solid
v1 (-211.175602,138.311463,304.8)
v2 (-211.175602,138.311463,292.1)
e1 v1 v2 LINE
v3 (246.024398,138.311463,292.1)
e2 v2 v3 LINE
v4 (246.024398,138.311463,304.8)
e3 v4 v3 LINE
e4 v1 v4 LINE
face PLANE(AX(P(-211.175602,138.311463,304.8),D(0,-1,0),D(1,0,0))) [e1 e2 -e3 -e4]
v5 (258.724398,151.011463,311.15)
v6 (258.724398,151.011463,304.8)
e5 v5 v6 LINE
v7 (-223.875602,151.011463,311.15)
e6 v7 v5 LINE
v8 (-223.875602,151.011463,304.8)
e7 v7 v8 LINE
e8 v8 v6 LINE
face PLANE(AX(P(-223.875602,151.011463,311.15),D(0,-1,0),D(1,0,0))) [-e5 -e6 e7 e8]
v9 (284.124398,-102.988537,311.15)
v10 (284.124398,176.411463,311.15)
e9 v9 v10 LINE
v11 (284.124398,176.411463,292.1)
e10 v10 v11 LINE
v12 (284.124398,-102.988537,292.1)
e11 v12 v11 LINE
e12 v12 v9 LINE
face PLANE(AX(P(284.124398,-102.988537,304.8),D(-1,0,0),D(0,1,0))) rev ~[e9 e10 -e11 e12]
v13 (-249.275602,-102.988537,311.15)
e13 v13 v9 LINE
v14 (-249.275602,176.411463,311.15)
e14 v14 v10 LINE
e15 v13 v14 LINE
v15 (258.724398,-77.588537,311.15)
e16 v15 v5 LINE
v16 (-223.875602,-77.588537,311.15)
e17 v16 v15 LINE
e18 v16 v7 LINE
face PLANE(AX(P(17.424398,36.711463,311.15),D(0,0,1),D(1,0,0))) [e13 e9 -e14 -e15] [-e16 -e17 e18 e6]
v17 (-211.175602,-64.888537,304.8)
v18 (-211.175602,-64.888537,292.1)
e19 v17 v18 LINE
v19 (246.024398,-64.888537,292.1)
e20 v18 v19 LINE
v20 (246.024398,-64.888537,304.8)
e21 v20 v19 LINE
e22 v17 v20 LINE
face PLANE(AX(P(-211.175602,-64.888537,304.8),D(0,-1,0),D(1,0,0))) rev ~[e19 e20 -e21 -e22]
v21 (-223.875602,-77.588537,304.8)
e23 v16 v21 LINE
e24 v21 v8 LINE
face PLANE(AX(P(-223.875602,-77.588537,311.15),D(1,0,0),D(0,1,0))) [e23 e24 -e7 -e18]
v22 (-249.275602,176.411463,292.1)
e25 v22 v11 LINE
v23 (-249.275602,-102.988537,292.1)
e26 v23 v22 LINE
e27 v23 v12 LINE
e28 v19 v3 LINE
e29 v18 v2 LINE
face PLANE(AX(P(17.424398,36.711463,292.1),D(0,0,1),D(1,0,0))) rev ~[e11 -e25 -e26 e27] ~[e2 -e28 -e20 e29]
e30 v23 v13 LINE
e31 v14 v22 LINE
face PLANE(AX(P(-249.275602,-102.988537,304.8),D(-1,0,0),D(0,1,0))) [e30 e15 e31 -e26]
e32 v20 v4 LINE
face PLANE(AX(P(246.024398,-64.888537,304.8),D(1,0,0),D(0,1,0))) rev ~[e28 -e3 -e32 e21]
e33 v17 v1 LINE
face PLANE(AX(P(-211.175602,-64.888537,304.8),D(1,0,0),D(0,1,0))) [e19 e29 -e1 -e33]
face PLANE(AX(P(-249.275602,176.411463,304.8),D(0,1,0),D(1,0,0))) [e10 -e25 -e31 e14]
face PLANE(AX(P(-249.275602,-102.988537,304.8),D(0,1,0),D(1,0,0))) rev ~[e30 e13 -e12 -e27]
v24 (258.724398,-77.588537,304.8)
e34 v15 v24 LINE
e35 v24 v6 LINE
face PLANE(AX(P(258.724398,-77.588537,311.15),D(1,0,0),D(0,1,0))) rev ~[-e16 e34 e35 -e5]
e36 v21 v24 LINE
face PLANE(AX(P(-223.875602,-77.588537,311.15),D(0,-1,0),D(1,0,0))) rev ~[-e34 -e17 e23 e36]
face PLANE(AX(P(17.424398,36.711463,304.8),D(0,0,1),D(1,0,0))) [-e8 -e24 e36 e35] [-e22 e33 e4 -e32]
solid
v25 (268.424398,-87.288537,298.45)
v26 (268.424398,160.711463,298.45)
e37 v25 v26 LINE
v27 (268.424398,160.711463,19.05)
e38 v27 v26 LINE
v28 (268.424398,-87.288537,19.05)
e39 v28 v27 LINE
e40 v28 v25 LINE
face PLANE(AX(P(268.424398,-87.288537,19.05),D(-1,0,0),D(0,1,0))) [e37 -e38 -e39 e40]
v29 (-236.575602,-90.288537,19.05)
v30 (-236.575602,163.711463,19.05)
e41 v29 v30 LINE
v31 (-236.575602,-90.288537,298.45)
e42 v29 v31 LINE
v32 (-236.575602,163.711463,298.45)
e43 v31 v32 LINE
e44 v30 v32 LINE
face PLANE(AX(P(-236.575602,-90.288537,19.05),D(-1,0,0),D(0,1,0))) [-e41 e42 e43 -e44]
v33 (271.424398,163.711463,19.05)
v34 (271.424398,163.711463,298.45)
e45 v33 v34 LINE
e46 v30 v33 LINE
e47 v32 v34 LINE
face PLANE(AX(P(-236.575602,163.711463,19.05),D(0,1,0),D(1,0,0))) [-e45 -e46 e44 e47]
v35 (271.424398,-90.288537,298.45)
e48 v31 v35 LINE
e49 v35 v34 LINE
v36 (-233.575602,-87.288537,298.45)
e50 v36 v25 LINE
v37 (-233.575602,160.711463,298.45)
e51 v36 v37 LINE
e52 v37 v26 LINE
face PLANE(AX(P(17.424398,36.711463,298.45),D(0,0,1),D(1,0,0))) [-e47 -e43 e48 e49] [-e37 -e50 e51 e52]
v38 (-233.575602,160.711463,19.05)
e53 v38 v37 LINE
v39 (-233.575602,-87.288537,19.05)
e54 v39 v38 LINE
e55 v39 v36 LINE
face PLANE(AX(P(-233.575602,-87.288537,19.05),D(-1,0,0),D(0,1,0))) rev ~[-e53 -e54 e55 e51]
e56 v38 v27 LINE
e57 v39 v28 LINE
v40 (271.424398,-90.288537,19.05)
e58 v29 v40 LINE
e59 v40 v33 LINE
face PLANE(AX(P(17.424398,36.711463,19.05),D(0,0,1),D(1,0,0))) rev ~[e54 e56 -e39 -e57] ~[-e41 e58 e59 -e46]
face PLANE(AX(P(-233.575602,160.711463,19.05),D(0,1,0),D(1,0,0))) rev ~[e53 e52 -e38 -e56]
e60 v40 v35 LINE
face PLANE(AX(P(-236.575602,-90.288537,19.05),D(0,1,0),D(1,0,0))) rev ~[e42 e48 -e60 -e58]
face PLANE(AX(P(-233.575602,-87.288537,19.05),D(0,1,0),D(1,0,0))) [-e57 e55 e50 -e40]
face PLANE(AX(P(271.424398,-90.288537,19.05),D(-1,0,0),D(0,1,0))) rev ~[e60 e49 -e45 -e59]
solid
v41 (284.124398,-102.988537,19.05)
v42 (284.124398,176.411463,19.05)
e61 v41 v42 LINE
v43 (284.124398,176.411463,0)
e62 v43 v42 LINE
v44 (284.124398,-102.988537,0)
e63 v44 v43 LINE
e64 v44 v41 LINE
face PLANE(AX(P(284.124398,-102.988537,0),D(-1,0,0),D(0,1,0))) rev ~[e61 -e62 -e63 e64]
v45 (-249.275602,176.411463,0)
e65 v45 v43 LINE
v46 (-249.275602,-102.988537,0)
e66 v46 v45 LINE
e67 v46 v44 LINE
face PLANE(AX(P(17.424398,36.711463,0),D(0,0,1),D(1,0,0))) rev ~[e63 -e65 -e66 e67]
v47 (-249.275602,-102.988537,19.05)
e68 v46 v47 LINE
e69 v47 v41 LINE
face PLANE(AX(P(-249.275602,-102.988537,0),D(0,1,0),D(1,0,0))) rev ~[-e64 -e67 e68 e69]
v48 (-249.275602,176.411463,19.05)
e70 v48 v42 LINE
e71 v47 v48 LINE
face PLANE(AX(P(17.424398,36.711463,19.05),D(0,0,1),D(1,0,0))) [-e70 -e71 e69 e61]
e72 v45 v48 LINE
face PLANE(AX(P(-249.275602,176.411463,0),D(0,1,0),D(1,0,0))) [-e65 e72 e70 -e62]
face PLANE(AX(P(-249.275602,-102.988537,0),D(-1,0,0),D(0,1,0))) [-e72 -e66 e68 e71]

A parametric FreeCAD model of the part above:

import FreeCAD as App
import Part
import Sketcher
Q = App.Units.Quantity

doc = App.newDocument("Part")
body = doc.addObject("PartDesign::Body", "Body")

sketch1 = body.newObject("Sketcher::SketchObject", "Sketch")
sketch1.AttachmentSupport = (doc.getObject("XY_Plane"), [""])
sketch1.MapMode = "FlatFace"
sketch1.addGeometry(Part.LineSegment(App.Vector(-249, 176, 0), App.Vector(-249, -103, 0)), False)
sketch1.addGeometry(Part.LineSegment(App.Vector(-249, -103, 0), App.Vector(284, -103, 0)), False)
sketch1.addGeometry(Part.LineSegment(App.Vector(284, -103, 0), App.Vector(284, 176, 0)), False)
sketch1.addGeometry(Part.LineSegment(App.Vector(284, 176, 0), App.Vector(-249, 176, 0)), False)
sketch1.addConstraint(Sketcher.Constraint("Coincident", 0, 2, 1, 1))
sketch1.addConstraint(Sketcher.Constraint("Coincident", 1, 2, 2, 1))
sketch1.addConstraint(Sketcher.Constraint("Coincident", 2, 2, 3, 1))
sketch1.addConstraint(Sketcher.Constraint("Coincident", 3, 2, 0, 1))
sketch1.addConstraint(Sketcher.Constraint("Vertical", 0))
sketch1.addConstraint(Sketcher.Constraint("Horizontal", 1))
sketch1.addConstraint(Sketcher.Constraint("Vertical", 2))
sketch1.addConstraint(Sketcher.Constraint("Horizontal", 3))
sketch1.addConstraint(Sketcher.Constraint("DistanceX", 1, 1, 1, 2, Q("21 in")))
sketch1.addConstraint(Sketcher.Constraint("DistanceY", 0, 2, 0, 1, Q("11 in")))
sketch1.addConstraint(Sketcher.Constraint("DistanceX", 0, 2, -1, 1, Q("9.8140001 in")))
sketch1.addConstraint(Sketcher.Constraint("DistanceY", 0, 2, -1, 1, 102.988537))
pad1 = body.newObject("PartDesign::Pad", "Pad")
pad1.Profile = sketch1
pad1.Length = Q("0.75 in")
body2 = doc.addObject("PartDesign::Body", "Body001")

sketch2 = body2.newObject("Sketcher::SketchObject", "Sketch001")
sketch2.AttachmentSupport = (doc.getObject("XY_Plane001"), [""])
sketch2.MapMode = "FlatFace"
sketch2.AttachmentOffset = App.Placement(App.Vector(0, 0, 0.75 * 25.4), App.Rotation())
sketch2.addGeometry(Part.LineSegment(App.Vector(-237, 164, 0), App.Vector(-237, -90, 0)), False)
sketch2.addGeometry(Part.LineSegment(App.Vector(-237, -90, 0), App.Vector(271, -90, 0)), False)
sketch2.addGeometry(Part.LineSegment(App.Vector(271, -90, 0), App.Vector(271, 164, 0)), False)
sketch2.addGeometry(Part.LineSegment(App.Vector(271, 164, 0), App.Vector(-237, 164, 0)), False)
sketch2.addGeometry(Part.LineSegment(App.Vector(268, -87, 0), App.Vector(-234, -87, 0)), False)
sketch2.addGeometry(Part.LineSegment(App.Vector(-234, -87, 0), App.Vector(-234, 161, 0)), False)
sketch2.addGeometry(Part.LineSegment(App.Vector(-234, 161, 0), App.Vector(268, 161, 0)), False)
sketch2.addGeometry(Part.LineSegment(App.Vector(268, 161, 0), App.Vector(268, -87, 0)), False)
sketch2.addConstraint(Sketcher.Constraint("Coincident", 0, 2, 1, 1))
sketch2.addConstraint(Sketcher.Constraint("Coincident", 1, 2, 2, 1))
sketch2.addConstraint(Sketcher.Constraint("Coincident", 2, 2, 3, 1))
sketch2.addConstraint(Sketcher.Constraint("Coincident", 3, 2, 0, 1))
sketch2.addConstraint(Sketcher.Constraint("Coincident", 4, 2, 5, 1))
sketch2.addConstraint(Sketcher.Constraint("Coincident", 5, 2, 6, 1))
sketch2.addConstraint(Sketcher.Constraint("Coincident", 6, 2, 7, 1))
sketch2.addConstraint(Sketcher.Constraint("Coincident", 7, 2, 4, 1))
sketch2.addConstraint(Sketcher.Constraint("Vertical", 0))
sketch2.addConstraint(Sketcher.Constraint("Horizontal", 1))
sketch2.addConstraint(Sketcher.Constraint("Vertical", 2))
sketch2.addConstraint(Sketcher.Constraint("Horizontal", 3))
sketch2.addConstraint(Sketcher.Constraint("Horizontal", 4))
sketch2.addConstraint(Sketcher.Constraint("Vertical", 5))
sketch2.addConstraint(Sketcher.Constraint("Horizontal", 6))
sketch2.addConstraint(Sketcher.Constraint("Vertical", 7))
sketch2.addConstraint(Sketcher.Constraint("DistanceX", 1, 1, 1, 2, Q("20 in")))
sketch2.addConstraint(Sketcher.Constraint("DistanceY", 0, 2, 0, 1, Q("10 in")))
sketch2.addConstraint(Sketcher.Constraint("DistanceX", 0, 2, -1, 1, Q("9.3140001 in")))
sketch2.addConstraint(Sketcher.Constraint("DistanceX", 4, 2, 4, 1, 502.0))
sketch2.addConstraint(Sketcher.Constraint("DistanceY", 5, 1, 5, 2, 248.0))
sketch2.addConstraint(Sketcher.Constraint("DistanceX", 4, 2, -1, 1, 233.575602))
sketch2.addConstraint(Sketcher.Constraint("DistanceY", 0, 2, 4, 2, 3.0))
sketch2.addConstraint(Sketcher.Constraint("DistanceY", 0, 2, -1, 1, 90.288537))
pad2 = body2.newObject("PartDesign::Pad", "Pad001")
pad2.Profile = sketch2
pad2.Length = Q("11 in")
body3 = doc.addObject("PartDesign::Body", "Body002")

sketch3 = body3.newObject("Sketcher::SketchObject", "Sketch002")
sketch3.AttachmentSupport = (doc.getObject("XY_Plane002"), [""])
sketch3.MapMode = "FlatFace"
sketch3.AttachmentOffset = App.Placement(App.Vector(0, 0, 11.75 * 25.4), App.Rotation())
sketch3.addGeometry(Part.LineSegment(App.Vector(-249, 176, 0), App.Vector(-249, -103, 0)), False)
sketch3.addGeometry(Part.LineSegment(App.Vector(-249, -103, 0), App.Vector(284, -103, 0)), False)
sketch3.addGeometry(Part.LineSegment(App.Vector(284, -103, 0), App.Vector(284, 176, 0)), False)
sketch3.addGeometry(Part.LineSegment(App.Vector(284, 176, 0), App.Vector(-249, 176, 0)), False)
sketch3.addConstraint(Sketcher.Constraint("Coincident", 0, 2, 1, 1))
sketch3.addConstraint(Sketcher.Constraint("Coincident", 1, 2, 2, 1))
sketch3.addConstraint(Sketcher.Constraint("Coincident", 2, 2, 3, 1))
sketch3.addConstraint(Sketcher.Constraint("Coincident", 3, 2, 0, 1))
sketch3.addConstraint(Sketcher.Constraint("Vertical", 0))
sketch3.addConstraint(Sketcher.Constraint("Horizontal", 1))
sketch3.addConstraint(Sketcher.Constraint("Vertical", 2))
sketch3.addConstraint(Sketcher.Constraint("Horizontal", 3))
sketch3.addConstraint(Sketcher.Constraint("DistanceX", 1, 1, 1, 2, Q("21 in")))
sketch3.addConstraint(Sketcher.Constraint("DistanceY", 0, 2, 0, 1, Q("11 in")))
sketch3.addConstraint(Sketcher.Constraint("DistanceX", 0, 2, -1, 1, Q("9.8140001 in")))
sketch3.addConstraint(Sketcher.Constraint("DistanceY", 0, 2, -1, 1, 102.988537))
pad3 = body3.newObject("PartDesign::Pad", "Pad002")
pad3.Profile = sketch3
pad3.Length = Q("0.5 in")
pad3.Midplane = True

sketch4 = body3.newObject("Sketcher::SketchObject", "Sketch003")
sketch4.AttachmentSupport = (doc.getObject("XY_Plane002"), [""])
sketch4.MapMode = "FlatFace"
sketch4.AttachmentOffset = App.Placement(App.Vector(0, 0, 12 * 25.4), App.Rotation())
sketch4.addGeometry(Part.LineSegment(App.Vector(-249, 176, 0), App.Vector(-249, -103, 0)), False)
sketch4.addGeometry(Part.LineSegment(App.Vector(-249, -103, 0), App.Vector(284, -103, 0)), False)
sketch4.addGeometry(Part.LineSegment(App.Vector(284, -103, 0), App.Vector(284, 176, 0)), False)
sketch4.addGeometry(Part.LineSegment(App.Vector(284, 176, 0), App.Vector(-249, 176, 0)), False)
sketch4.addConstraint(Sketcher.Constraint("Coincident", 0, 2, 1, 1))
sketch4.addConstraint(Sketcher.Constraint("Coincident", 1, 2, 2, 1))
sketch4.addConstraint(Sketcher.Constraint("Coincident", 2, 2, 3, 1))
sketch4.addConstraint(Sketcher.Constraint("Coincident", 3, 2, 0, 1))
sketch4.addConstraint(Sketcher.Constraint("Vertical", 0))
sketch4.addConstraint(Sketcher.Constraint("Horizontal", 1))
sketch4.addConstraint(Sketcher.Constraint("Vertical", 2))
sketch4.addConstraint(Sketcher.Constraint("Horizontal", 3))
sketch4.addConstraint(Sketcher.Constraint("DistanceX", 1, 1, 1, 2, Q("21 in")))
sketch4.addConstraint(Sketcher.Constraint("DistanceY", 0, 2, 0, 1, Q("11 in")))
sketch4.addConstraint(Sketcher.Constraint("DistanceX", 0, 2, -1, 1, Q("9.8140001 in")))
sketch4.addConstraint(Sketcher.Constraint("DistanceY", 0, 2, -1, 1, 102.988537))
pad4 = body3.newObject("PartDesign::Pad", "Pad003")
pad4.Profile = sketch4
pad4.Length = Q("0.25 in")

sketch5 = body3.newObject("Sketcher::SketchObject", "Sketch004")
sketch5.AttachmentSupport = (doc.getObject("XY_Plane002"), [""])
sketch5.MapMode = "FlatFace"
sketch5.AttachmentOffset = App.Placement(App.Vector(0, 0, 12.25 * 25.4), App.Rotation())
sketch5.addGeometry(Part.LineSegment(App.Vector(-224, 151, 0), App.Vector(-224, -78, 0)), False)
sketch5.addGeometry(Part.LineSegment(App.Vector(-224, -78, 0), App.Vector(259, -78, 0)), False)
sketch5.addGeometry(Part.LineSegment(App.Vector(259, -78, 0), App.Vector(259, 151, 0)), False)
sketch5.addGeometry(Part.LineSegment(App.Vector(259, 151, 0), App.Vector(-224, 151, 0)), False)
sketch5.addConstraint(Sketcher.Constraint("Coincident", 0, 2, 1, 1))
sketch5.addConstraint(Sketcher.Constraint("Coincident", 1, 2, 2, 1))
sketch5.addConstraint(Sketcher.Constraint("Coincident", 2, 2, 3, 1))
sketch5.addConstraint(Sketcher.Constraint("Coincident", 3, 2, 0, 1))
sketch5.addConstraint(Sketcher.Constraint("Vertical", 0))
sketch5.addConstraint(Sketcher.Constraint("Horizontal", 1))
sketch5.addConstraint(Sketcher.Constraint("Vertical", 2))
sketch5.addConstraint(Sketcher.Constraint("Horizontal", 3))
sketch5.addConstraint(Sketcher.Constraint("DistanceX", 1, 1, 1, 2, Q("19 in")))
sketch5.addConstraint(Sketcher.Constraint("DistanceY", 0, 2, 0, 1, Q("9 in")))
sketch5.addConstraint(Sketcher.Constraint("DistanceX", 0, 2, -1, 1, Q("8.8140001 in")))
sketch5.addConstraint(Sketcher.Constraint("DistanceY", 0, 2, -1, 1, 77.588537))
pocket1 = body3.newObject("PartDesign::Pocket", "Pocket")
pocket1.Profile = sketch5
pocket1.Length = Q("0.25 in")

sketch6 = body3.newObject("Sketcher::SketchObject", "Sketch005")
sketch6.AttachmentSupport = (doc.getObject("XY_Plane002"), [""])
sketch6.MapMode = "FlatFace"
sketch6.AttachmentOffset = App.Placement(App.Vector(0, 0, 12 * 25.4), App.Rotation())
sketch6.addGeometry(Part.LineSegment(App.Vector(-211, 138, 0), App.Vector(-211, -65, 0)), False)
sketch6.addGeometry(Part.LineSegment(App.Vector(-211, -65, 0), App.Vector(246, -65, 0)), False)
sketch6.addGeometry(Part.LineSegment(App.Vector(246, -65, 0), App.Vector(246, 138, 0)), False)
sketch6.addGeometry(Part.LineSegment(App.Vector(246, 138, 0), App.Vector(-211, 138, 0)), False)
sketch6.addConstraint(Sketcher.Constraint("Coincident", 0, 2, 1, 1))
sketch6.addConstraint(Sketcher.Constraint("Coincident", 1, 2, 2, 1))
sketch6.addConstraint(Sketcher.Constraint("Coincident", 2, 2, 3, 1))
sketch6.addConstraint(Sketcher.Constraint("Coincident", 3, 2, 0, 1))
sketch6.addConstraint(Sketcher.Constraint("Vertical", 0))
sketch6.addConstraint(Sketcher.Constraint("Horizontal", 1))
sketch6.addConstraint(Sketcher.Constraint("Vertical", 2))
sketch6.addConstraint(Sketcher.Constraint("Horizontal", 3))
sketch6.addConstraint(Sketcher.Constraint("DistanceX", 1, 1, 1, 2, Q("18 in")))
sketch6.addConstraint(Sketcher.Constraint("DistanceY", 0, 2, 0, 1, Q("8 in")))
sketch6.addConstraint(Sketcher.Constraint("DistanceX", 0, 2, -1, 1, Q("8.3140001 in")))
sketch6.addConstraint(Sketcher.Constraint("DistanceY", 0, 2, -1, 1, 64.888537))
pocket2 = body3.newObject("PartDesign::Pocket", "Pocket001")
pocket2.Profile = sketch6
pocket2.Length = Q("1 in")

doc.recompute()
